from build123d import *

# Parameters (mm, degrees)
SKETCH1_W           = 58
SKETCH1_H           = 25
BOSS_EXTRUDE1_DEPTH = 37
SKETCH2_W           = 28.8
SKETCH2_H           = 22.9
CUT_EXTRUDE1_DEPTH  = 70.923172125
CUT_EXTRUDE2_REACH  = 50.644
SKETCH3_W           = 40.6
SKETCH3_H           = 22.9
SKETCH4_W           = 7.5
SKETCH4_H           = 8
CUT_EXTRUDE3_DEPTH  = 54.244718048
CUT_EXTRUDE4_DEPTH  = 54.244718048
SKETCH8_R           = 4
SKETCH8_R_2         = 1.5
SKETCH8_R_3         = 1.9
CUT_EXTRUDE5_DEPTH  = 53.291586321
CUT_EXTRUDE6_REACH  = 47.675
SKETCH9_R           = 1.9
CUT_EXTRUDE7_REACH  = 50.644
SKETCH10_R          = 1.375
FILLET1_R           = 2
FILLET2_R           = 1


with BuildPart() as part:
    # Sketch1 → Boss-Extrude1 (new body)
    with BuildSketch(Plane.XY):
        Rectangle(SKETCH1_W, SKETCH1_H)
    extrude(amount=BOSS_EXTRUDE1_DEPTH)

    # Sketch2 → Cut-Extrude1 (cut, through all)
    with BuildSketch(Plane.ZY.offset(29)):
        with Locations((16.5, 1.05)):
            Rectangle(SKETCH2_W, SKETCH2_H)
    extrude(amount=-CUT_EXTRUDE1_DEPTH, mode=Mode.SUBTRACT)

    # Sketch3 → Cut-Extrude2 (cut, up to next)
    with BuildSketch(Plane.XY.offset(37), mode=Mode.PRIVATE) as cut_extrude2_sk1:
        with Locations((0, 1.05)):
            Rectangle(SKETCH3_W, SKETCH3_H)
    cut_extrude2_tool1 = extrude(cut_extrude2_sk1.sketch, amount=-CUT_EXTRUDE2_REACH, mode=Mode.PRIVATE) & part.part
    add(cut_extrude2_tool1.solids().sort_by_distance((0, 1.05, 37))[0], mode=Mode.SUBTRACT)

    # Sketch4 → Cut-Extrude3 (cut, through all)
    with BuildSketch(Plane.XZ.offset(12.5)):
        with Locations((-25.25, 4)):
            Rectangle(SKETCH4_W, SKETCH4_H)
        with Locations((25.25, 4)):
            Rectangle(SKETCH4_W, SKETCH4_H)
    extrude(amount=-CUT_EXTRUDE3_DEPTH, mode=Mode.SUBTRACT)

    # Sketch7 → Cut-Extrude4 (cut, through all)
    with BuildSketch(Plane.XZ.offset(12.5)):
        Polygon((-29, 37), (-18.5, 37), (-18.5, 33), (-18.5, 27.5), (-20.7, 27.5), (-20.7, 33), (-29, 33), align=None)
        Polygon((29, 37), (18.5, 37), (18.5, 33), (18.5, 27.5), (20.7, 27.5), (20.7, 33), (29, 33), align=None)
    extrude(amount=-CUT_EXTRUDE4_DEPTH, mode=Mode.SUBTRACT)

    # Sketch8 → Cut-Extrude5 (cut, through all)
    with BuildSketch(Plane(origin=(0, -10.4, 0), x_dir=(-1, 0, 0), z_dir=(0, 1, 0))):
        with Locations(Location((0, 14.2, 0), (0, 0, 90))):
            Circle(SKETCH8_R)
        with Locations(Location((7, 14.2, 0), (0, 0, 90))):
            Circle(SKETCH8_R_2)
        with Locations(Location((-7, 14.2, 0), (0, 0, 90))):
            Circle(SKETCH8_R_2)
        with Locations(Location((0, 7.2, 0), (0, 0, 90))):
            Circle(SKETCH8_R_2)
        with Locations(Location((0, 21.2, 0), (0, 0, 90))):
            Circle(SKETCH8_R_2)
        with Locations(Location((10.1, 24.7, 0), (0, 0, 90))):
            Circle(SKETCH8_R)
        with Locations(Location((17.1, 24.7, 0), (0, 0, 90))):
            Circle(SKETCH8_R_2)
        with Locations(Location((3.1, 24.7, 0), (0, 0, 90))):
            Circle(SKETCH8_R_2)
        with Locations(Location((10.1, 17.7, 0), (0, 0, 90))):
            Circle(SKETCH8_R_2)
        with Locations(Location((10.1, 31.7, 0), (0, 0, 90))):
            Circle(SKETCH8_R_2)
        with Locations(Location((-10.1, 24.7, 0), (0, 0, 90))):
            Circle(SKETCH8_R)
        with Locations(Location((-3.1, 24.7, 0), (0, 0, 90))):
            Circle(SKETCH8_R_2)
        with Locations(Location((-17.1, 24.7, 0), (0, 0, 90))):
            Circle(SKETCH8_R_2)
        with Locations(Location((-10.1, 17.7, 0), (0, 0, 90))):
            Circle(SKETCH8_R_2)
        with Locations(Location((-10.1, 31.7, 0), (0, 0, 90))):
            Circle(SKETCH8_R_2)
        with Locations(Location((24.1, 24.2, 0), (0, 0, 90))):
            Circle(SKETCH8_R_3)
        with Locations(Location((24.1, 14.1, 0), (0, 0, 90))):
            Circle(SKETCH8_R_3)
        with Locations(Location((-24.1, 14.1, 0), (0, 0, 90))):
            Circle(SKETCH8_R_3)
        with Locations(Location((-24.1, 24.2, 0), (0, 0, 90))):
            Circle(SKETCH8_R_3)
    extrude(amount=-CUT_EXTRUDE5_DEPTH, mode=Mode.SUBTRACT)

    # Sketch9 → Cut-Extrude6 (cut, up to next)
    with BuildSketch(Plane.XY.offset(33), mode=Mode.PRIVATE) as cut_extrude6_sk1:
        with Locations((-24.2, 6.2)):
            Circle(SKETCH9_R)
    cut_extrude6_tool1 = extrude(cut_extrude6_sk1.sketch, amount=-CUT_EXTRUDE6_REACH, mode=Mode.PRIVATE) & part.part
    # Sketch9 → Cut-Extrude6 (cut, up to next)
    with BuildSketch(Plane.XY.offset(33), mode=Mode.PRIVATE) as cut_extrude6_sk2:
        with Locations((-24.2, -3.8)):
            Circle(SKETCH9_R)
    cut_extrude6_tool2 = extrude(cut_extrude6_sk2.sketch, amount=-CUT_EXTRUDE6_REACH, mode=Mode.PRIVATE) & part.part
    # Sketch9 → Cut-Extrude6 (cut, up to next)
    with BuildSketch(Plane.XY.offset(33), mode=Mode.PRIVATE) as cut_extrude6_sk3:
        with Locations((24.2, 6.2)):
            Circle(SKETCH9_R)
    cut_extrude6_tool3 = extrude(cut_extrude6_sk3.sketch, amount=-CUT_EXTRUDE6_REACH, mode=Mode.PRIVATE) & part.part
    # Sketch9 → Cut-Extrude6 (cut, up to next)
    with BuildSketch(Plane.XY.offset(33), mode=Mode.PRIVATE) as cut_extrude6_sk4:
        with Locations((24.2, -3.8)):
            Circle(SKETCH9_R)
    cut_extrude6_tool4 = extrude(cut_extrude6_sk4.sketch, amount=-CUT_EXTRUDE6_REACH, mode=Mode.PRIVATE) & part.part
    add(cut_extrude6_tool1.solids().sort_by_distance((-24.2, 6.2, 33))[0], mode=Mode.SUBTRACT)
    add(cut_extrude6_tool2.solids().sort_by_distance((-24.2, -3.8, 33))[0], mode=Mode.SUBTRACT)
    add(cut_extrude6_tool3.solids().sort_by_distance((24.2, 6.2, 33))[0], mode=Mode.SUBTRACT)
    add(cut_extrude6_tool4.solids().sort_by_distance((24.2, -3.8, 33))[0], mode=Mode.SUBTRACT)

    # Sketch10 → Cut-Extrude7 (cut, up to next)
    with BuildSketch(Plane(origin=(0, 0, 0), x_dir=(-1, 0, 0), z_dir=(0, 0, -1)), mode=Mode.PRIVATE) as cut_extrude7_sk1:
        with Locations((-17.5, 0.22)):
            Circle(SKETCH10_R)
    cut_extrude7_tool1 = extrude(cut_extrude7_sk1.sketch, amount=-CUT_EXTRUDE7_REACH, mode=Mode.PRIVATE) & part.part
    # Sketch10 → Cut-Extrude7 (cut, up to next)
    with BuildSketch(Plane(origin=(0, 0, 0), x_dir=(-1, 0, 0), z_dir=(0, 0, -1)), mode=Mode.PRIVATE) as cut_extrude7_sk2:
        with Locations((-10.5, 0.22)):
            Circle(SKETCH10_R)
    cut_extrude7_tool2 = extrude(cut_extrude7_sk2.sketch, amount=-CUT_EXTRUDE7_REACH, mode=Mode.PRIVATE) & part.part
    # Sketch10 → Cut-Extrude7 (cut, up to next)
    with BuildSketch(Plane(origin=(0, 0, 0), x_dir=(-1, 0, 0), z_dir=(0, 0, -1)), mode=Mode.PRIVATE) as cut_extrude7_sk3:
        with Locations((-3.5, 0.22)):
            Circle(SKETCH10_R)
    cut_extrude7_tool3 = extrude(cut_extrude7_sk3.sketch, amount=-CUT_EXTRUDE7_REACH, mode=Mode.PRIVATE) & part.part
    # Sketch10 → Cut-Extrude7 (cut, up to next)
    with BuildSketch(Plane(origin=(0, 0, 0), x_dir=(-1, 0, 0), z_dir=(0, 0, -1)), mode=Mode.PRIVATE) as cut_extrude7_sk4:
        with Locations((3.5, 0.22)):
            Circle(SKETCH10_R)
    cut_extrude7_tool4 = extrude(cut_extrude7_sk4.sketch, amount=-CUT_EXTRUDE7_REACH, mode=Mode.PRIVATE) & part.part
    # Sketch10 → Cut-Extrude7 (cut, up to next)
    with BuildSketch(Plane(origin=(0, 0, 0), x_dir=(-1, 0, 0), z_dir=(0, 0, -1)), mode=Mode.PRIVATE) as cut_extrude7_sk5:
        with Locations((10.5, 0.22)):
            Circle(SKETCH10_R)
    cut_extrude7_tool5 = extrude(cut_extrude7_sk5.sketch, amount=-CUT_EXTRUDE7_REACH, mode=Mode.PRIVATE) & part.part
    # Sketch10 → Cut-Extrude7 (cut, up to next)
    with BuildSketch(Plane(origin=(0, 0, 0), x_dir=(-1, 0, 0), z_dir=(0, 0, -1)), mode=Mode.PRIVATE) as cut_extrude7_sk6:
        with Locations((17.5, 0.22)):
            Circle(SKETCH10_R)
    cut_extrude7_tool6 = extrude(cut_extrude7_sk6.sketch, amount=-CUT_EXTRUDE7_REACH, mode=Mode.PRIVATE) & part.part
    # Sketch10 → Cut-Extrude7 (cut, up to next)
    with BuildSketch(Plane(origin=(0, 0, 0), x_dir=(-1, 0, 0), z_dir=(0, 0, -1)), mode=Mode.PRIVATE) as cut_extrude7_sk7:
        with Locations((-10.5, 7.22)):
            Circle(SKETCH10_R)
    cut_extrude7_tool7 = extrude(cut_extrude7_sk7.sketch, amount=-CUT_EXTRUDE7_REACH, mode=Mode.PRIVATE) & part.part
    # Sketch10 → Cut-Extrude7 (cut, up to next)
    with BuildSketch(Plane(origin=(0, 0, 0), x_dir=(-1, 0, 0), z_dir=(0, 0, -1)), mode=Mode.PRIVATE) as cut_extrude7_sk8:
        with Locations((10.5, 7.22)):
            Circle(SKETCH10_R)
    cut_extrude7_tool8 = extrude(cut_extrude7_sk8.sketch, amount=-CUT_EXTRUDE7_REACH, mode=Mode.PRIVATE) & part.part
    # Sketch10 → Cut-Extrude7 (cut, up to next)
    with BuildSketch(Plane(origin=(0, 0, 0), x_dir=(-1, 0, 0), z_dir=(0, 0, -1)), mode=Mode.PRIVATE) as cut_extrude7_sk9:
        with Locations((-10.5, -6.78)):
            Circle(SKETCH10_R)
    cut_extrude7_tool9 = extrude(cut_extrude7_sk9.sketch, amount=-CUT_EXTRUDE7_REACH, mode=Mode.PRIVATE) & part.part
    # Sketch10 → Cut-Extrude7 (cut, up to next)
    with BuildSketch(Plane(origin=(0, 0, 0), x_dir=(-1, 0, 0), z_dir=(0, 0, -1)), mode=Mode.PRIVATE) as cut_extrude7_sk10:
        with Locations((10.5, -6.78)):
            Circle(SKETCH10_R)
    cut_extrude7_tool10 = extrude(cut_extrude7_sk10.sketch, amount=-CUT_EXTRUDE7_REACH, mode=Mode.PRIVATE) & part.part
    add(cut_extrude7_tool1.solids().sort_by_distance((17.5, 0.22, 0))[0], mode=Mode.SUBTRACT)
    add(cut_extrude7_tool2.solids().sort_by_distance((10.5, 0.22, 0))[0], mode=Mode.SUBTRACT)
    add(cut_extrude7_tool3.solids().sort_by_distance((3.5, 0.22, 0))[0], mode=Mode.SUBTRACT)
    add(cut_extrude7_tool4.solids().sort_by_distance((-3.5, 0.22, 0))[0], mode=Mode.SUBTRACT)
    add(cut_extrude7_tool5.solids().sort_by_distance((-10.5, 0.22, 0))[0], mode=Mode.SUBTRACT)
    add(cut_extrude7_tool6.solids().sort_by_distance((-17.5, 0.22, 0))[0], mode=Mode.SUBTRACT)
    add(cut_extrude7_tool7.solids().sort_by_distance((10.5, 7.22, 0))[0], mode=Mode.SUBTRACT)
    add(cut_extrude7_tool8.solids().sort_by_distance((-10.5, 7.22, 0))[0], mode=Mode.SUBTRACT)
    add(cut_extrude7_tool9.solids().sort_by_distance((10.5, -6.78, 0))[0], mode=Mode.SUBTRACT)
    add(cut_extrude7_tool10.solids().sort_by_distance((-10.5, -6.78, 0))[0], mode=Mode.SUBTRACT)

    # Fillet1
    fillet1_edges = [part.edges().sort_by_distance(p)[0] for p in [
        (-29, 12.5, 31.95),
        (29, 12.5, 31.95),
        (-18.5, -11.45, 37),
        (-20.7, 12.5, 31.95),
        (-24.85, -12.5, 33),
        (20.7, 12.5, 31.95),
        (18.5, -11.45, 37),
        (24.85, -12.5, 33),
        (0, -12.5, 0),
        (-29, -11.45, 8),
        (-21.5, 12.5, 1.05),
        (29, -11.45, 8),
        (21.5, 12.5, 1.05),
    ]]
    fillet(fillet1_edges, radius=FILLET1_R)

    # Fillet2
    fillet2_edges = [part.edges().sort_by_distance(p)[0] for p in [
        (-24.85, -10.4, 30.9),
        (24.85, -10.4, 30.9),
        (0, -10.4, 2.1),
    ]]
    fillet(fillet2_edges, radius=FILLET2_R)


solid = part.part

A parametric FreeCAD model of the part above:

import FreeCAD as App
import Part
import Sketcher


def edges_at(feature, points):
    """Names of the edges that pass closest to the given points."""
    edges = feature.Shape.Edges
    near = lambda p: min(range(len(edges)), key=lambda i: edges[i].distToShape(Part.Vertex(*p))[0])
    return sorted({f"Edge{near(p) + 1}" for p in points})

doc = App.newDocument("Part")
body = doc.addObject("PartDesign::Body", "Body")

# Sketch on XY plane
sketch1 = body.newObject("Sketcher::SketchObject", "Sketch")
sketch1.AttachmentSupport = (doc.getObject("XY_Plane"), [""])
sketch1.MapMode = "FlatFace"
sketch1.addGeometry(Part.LineSegment(App.Vector(-29, 12.5, 0), App.Vector(-29, -12.5, 0)), False)
sketch1.addGeometry(Part.LineSegment(App.Vector(-29, -12.5, 0), App.Vector(29, -12.5, 0)), False)
sketch1.addGeometry(Part.LineSegment(App.Vector(29, -12.5, 0), App.Vector(29, 12.5, 0)), False)
sketch1.addGeometry(Part.LineSegment(App.Vector(29, 12.5, 0), App.Vector(-29, 12.5, 0)), False)
sketch1.addConstraint(Sketcher.Constraint("Coincident", 0, 2, 1, 1))
sketch1.addConstraint(Sketcher.Constraint("Coincident", 1, 2, 2, 1))
sketch1.addConstraint(Sketcher.Constraint("Coincident", 2, 2, 3, 1))
sketch1.addConstraint(Sketcher.Constraint("Coincident", 3, 2, 0, 1))
sketch1.addConstraint(Sketcher.Constraint("Vertical", 0))
sketch1.addConstraint(Sketcher.Constraint("Horizontal", 1))
sketch1.addConstraint(Sketcher.Constraint("Vertical", 2))
sketch1.addConstraint(Sketcher.Constraint("Horizontal", 3))
sketch1.addConstraint(Sketcher.Constraint("Symmetric", 0, 2, 2, 2, -1, 1))
sketch1.addConstraint(Sketcher.Constraint("DistanceX", 1, 1, 1, 2, 58.0))
sketch1.addConstraint(Sketcher.Constraint("DistanceY", 0, 2, 0, 1, 25.0))
pad1 = body.newObject("PartDesign::Pad", "Pad")
pad1.Profile = sketch1
pad1.Length = 37

# Sketch on YZ plane
sketch2 = body.newObject("Sketcher::SketchObject", "Sketch001")
sketch2.AttachmentSupport = (doc.getObject("YZ_Plane"), [""])
sketch2.MapMode = "FlatFace"
sketch2.AttachmentOffset = App.Placement(App.Vector(0, 0, -29), App.Rotation())
sketch2.addGeometry(Part.LineSegment(App.Vector(12.5, 2.1, 0), App.Vector(-10.4, 2.1, 0)), False)
sketch2.addGeometry(Part.LineSegment(App.Vector(-10.4, 2.1, 0), App.Vector(-10.4, 30.9, 0)), False)
sketch2.addGeometry(Part.LineSegment(App.Vector(-10.4, 30.9, 0), App.Vector(12.5, 30.9, 0)), False)
sketch2.addGeometry(Part.LineSegment(App.Vector(12.5, 30.9, 0), App.Vector(12.5, 2.1, 0)), False)
sketch2.addConstraint(Sketcher.Constraint("Coincident", 0, 2, 1, 1))
sketch2.addConstraint(Sketcher.Constraint("Coincident", 1, 2, 2, 1))
sketch2.addConstraint(Sketcher.Constraint("Coincident", 2, 2, 3, 1))
sketch2.addConstraint(Sketcher.Constraint("Coincident", 3, 2, 0, 1))
sketch2.addConstraint(Sketcher.Constraint("Horizontal", 0))
sketch2.addConstraint(Sketcher.Constraint("Vertical", 1))
sketch2.addConstraint(Sketcher.Constraint("Horizontal", 2))
sketch2.addConstraint(Sketcher.Constraint("Vertical", 3))
sketch2.addConstraint(Sketcher.Constraint("DistanceX", 0, 2, 0, 1, 22.9))
sketch2.addConstraint(Sketcher.Constraint("DistanceY", 1, 1, 1, 2, 28.8))
sketch2.addConstraint(Sketcher.Constraint("DistanceX", 0, 2, -1, 1, 10.4))
sketch2.addConstraint(Sketcher.Constraint("DistanceY", -1, 1, 0, 2, 2.1))
pocket1 = body.newObject("PartDesign::Pocket", "Pocket")
pocket1.Profile = sketch2
pocket1.Type = "ThroughAll"
pocket1.Reversed = True

# Sketch on XY plane
sketch3 = body.newObject("Sketcher::SketchObject", "Sketch002")
sketch3.AttachmentSupport = (doc.getObject("XY_Plane"), [""])
sketch3.MapMode = "FlatFace"
sketch3.AttachmentOffset = App.Placement(App.Vector(0, 0, 37), App.Rotation())
sketch3.addGeometry(Part.LineSegment(App.Vector(-20.3, 12.5, 0), App.Vector(-20.3, -10.4, 0)), False)
sketch3.addGeometry(Part.LineSegment(App.Vector(-20.3, -10.4, 0), App.Vector(20.3, -10.4, 0)), False)
sketch3.addGeometry(Part.LineSegment(App.Vector(20.3, -10.4, 0), App.Vector(20.3, 12.5, 0)), False)
sketch3.addGeometry(Part.LineSegment(App.Vector(20.3, 12.5, 0), App.Vector(-20.3, 12.5, 0)), False)
sketch3.addConstraint(Sketcher.Constraint("Coincident", 0, 2, 1, 1))
sketch3.addConstraint(Sketcher.Constraint("Coincident", 1, 2, 2, 1))
sketch3.addConstraint(Sketcher.Constraint("Coincident", 2, 2, 3, 1))
sketch3.addConstraint(Sketcher.Constraint("Coincident", 3, 2, 0, 1))
sketch3.addConstraint(Sketcher.Constraint("Vertical", 0))
sketch3.addConstraint(Sketcher.Constraint("Horizontal", 1))
sketch3.addConstraint(Sketcher.Constraint("Vertical", 2))
sketch3.addConstraint(Sketcher.Constraint("Horizontal", 3))
sketch3.addConstraint(Sketcher.Constraint("DistanceX", 1, 1, 1, 2, 40.6))
sketch3.addConstraint(Sketcher.Constraint("DistanceY", 0, 2, 0, 1, 22.9))
sketch3.addConstraint(Sketcher.Constraint("DistanceX", 0, 2, -1, 1, 20.3))
sketch3.addConstraint(Sketcher.Constraint("DistanceY", 0, 2, -1, 1, 10.4))
pocket2 = body.newObject("PartDesign::Pocket", "Pocket001")
pocket2.Profile = sketch3
pocket2.Type = "UpToFirst"

# Sketch on XZ plane
sketch4 = body.newObject("Sketcher::SketchObject", "Sketch003")
sketch4.AttachmentSupport = (doc.getObject("XZ_Plane"), [""])
sketch4.MapMode = "FlatFace"
sketch4.AttachmentOffset = App.Placement(App.Vector(0, 0, 12.5), App.Rotation())
sketch4.addGeometry(Part.LineSegment(App.Vector(-29, 8, 0), App.Vector(-29, 0, 0)), False)
sketch4.addGeometry(Part.LineSegment(App.Vector(-29, 0, 0), App.Vector(-21.5, 0, 0)), False)
sketch4.addGeometry(Part.LineSegment(App.Vector(-21.5, 0, 0), App.Vector(-21.5, 8, 0)), False)
sketch4.addGeometry(Part.LineSegment(App.Vector(-21.5, 8, 0), App.Vector(-29, 8, 0)), False)
sketch4.addGeometry(Part.LineSegment(App.Vector(21.5, 8, 0), App.Vector(21.5, 0, 0)), False)
sketch4.addGeometry(Part.LineSegment(App.Vector(21.5, 0, 0), App.Vector(29, 0, 0)), False)
sketch4.addGeometry(Part.LineSegment(App.Vector(29, 0, 0), App.Vector(29, 8, 0)), False)
sketch4.addGeometry(Part.LineSegment(App.Vector(29, 8, 0), App.Vector(21.5, 8, 0)), False)
sketch4.addConstraint(Sketcher.Constraint("Coincident", 0, 2, 1, 1))
sketch4.addConstraint(Sketcher.Constraint("Coincident", 1, 2, 2, 1))
sketch4.addConstraint(Sketcher.Constraint("Coincident", 2, 2, 3, 1))
sketch4.addConstraint(Sketcher.Constraint("Coincident", 3, 2, 0, 1))
sketch4.addConstraint(Sketcher.Constraint("Coincident", 4, 2, 5, 1))
sketch4.addConstraint(Sketcher.Constraint("Coincident", 5, 2, 6, 1))
sketch4.addConstraint(Sketcher.Constraint("Coincident", 6, 2, 7, 1))
sketch4.addConstraint(Sketcher.Constraint("Coincident", 7, 2, 4, 1))
sketch4.addConstraint(Sketcher.Constraint("Vertical", 0))
sketch4.addConstraint(Sketcher.Constraint("Horizontal", 1))
sketch4.addConstraint(Sketcher.Constraint("Vertical", 2))
sketch4.addConstraint(Sketcher.Constraint("Horizontal", 3))
sketch4.addConstraint(Sketcher.Constraint("Vertical", 4))
sketch4.addConstraint(Sketcher.Constraint("Horizontal", 5))
sketch4.addConstraint(Sketcher.Constraint("Vertical", 6))
sketch4.addConstraint(Sketcher.Constraint("Horizontal", 7))
sketch4.addConstraint(Sketcher.Constraint("Symmetric", 1, 2, 4, 2, -1, 1))
sketch4.addConstraint(Sketcher.Constraint("Symmetric", 0, 2, 5, 2, -2))
sketch4.addConstraint(Sketcher.Constraint("Horizontal", 3, 2, 6, 2))
sketch4.addConstraint(Sketcher.Constraint("DistanceY", 0, 2, 0, 1, 8.0))
sketch4.addConstraint(Sketcher.Constraint("DistanceX", 1, 1, 1, 2, 7.5))
sketch4.addConstraint(Sketcher.Constraint("DistanceX", 0, 2, -1, 1, 29.0))
pocket3 = body.newObject("PartDesign::Pocket", "Pocket002")
pocket3.Profile = sketch4
pocket3.Type = "ThroughAll"

# Sketch on XZ plane
sketch5 = body.newObject("Sketcher::SketchObject", "Sketch004")
sketch5.AttachmentSupport = (doc.getObject("XZ_Plane"), [""])
sketch5.MapMode = "FlatFace"
sketch5.AttachmentOffset = App.Placement(App.Vector(0, 0, 12.5), App.Rotation())
sketch5.addGeometry(Part.LineSegment(App.Vector(-18.5, 37, 0), App.Vector(-29, 37, 0)), False)
sketch5.addGeometry(Part.LineSegment(App.Vector(-29, 37, 0), App.Vector(-29, 33, 0)), False)
sketch5.addGeometry(Part.LineSegment(App.Vector(-29, 33, 0), App.Vector(-20.7, 33, 0)), False)
sketch5.addGeometry(Part.LineSegment(App.Vector(-20.7, 33, 0), App.Vector(-20.7, 27.5, 0)), False)
sketch5.addGeometry(Part.LineSegment(App.Vector(-20.7, 27.5, 0), App.Vector(-18.5, 27.5, 0)), False)
sketch5.addGeometry(Part.LineSegment(App.Vector(-18.5, 27.5, 0), App.Vector(-18.5, 37, 0)), False)
sketch5.addGeometry(Part.LineSegment(App.Vector(29, 37, 0), App.Vector(18.5, 37, 0)), False)
sketch5.addGeometry(Part.LineSegment(App.Vector(18.5, 37, 0), App.Vector(18.5, 27.5, 0)), False)
sketch5.addGeometry(Part.LineSegment(App.Vector(18.5, 27.5, 0), App.Vector(20.7, 27.5, 0)), False)
sketch5.addGeometry(Part.LineSegment(App.Vector(20.7, 27.5, 0), App.Vector(20.7, 33, 0)), False)
sketch5.addGeometry(Part.LineSegment(App.Vector(20.7, 33, 0), App.Vector(29, 33, 0)), False)
sketch5.addGeometry(Part.LineSegment(App.Vector(29, 33, 0), App.Vector(29, 37, 0)), False)
sketch5.addConstraint(Sketcher.Constraint("Coincident", 0, 2, 1, 1))
sketch5.addConstraint(Sketcher.Constraint("Coincident", 1, 2, 2, 1))
sketch5.addConstraint(Sketcher.Constraint("Coincident", 2, 2, 3, 1))
sketch5.addConstraint(Sketcher.Constraint("Coincident", 3, 2, 4, 1))
sketch5.addConstraint(Sketcher.Constraint("Coincident", 4, 2, 5, 1))
sketch5.addConstraint(Sketcher.Constraint("Coincident", 5, 2, 0, 1))
sketch5.addConstraint(Sketcher.Constraint("Coincident", 6, 2, 7, 1))
sketch5.addConstraint(Sketcher.Constraint("Coincident", 7, 2, 8, 1))
sketch5.addConstraint(Sketcher.Constraint("Coincident", 8, 2, 9, 1))
sketch5.addConstraint(Sketcher.Constraint("Coincident", 9, 2, 10, 1))
sketch5.addConstraint(Sketcher.Constraint("Coincident", 10, 2, 11, 1))
sketch5.addConstraint(Sketcher.Constraint("Coincident", 11, 2, 6, 1))
sketch5.addConstraint(Sketcher.Constraint("Horizontal", 0))
sketch5.addConstraint(Sketcher.Constraint("Vertical", 1))
sketch5.addConstraint(Sketcher.Constraint("Horizontal", 2))
sketch5.addConstraint(Sketcher.Constraint("Vertical", 3))
sketch5.addConstraint(Sketcher.Constraint("Horizontal", 4))
sketch5.addConstraint(Sketcher.Constraint("Vertical", 5))
sketch5.addConstraint(Sketcher.Constraint("Horizontal", 6))
sketch5.addConstraint(Sketcher.Constraint("Vertical", 7))
sketch5.addConstraint(Sketcher.Constraint("Horizontal", 8))
sketch5.addConstraint(Sketcher.Constraint("Vertical", 9))
sketch5.addConstraint(Sketcher.Constraint("Horizontal", 10))
sketch5.addConstraint(Sketcher.Constraint("Vertical", 11))
sketch5.addConstraint(Sketcher.Constraint("Symmetric", 5, 2, 6, 2, -2))
sketch5.addConstraint(Sketcher.Constraint("Symmetric", 3, 2, 8, 2, -2))
sketch5.addConstraint(Sketcher.Constraint("Symmetric", 1, 2, 10, 2, -2))
sketch5.addConstraint(Sketcher.Constraint("DistanceY", 1, 2, 1, 1, 4.0))
sketch5.addConstraint(Sketcher.Constraint("DistanceX", 0, 2, 0, 1, 10.5))
sketch5.addConstraint(Sketcher.Constraint("DistanceX", 2, 1, 2, 2, 8.3))
sketch5.addConstraint(Sketcher.Constraint("DistanceY", 3, 2, 3, 1, 5.5))
sketch5.addConstraint(Sketcher.Constraint("DistanceX", 0, 2, -1, 1, 29.0))
sketch5.addConstraint(Sketcher.Constraint("DistanceY", -1, 1, 0, 2, 37.0))
pocket4 = body.newObject("PartDesign::Pocket", "Pocket003")
pocket4.Profile = sketch5
pocket4.Type = "ThroughAll"

# Sketch on XZ plane
sketch6 = body.newObject("Sketcher::SketchObject", "Sketch005")
sketch6.AttachmentSupport = (doc.getObject("XZ_Plane"), [""])
sketch6.MapMode = "FlatFace"
sketch6.AttachmentOffset = App.Placement(App.Vector(0, 0, 10.4), App.Rotation())
sketch6.addGeometry(Part.Circle(App.Vector(0, 14.2, 0), App.Vector(0, 0, 1), 4), False)
sketch6.addGeometry(Part.Circle(App.Vector(-7, 14.2, 0), App.Vector(0, 0, 1), 1.5), False)
sketch6.addGeometry(Part.Circle(App.Vector(7, 14.2, 0), App.Vector(0, 0, 1), 1.5), False)
sketch6.addGeometry(Part.Circle(App.Vector(0, 7.2, 0), App.Vector(0, 0, 1), 1.5), False)
sketch6.addGeometry(Part.Circle(App.Vector(0, 21.2, 0), App.Vector(0, 0, 1), 1.5), False)
sketch6.addGeometry(Part.Circle(App.Vector(-10.1, 24.7, 0), App.Vector(0, 0, 1), 4), False)
sketch6.addGeometry(Part.Circle(App.Vector(-17.1, 24.7, 0), App.Vector(0, 0, 1), 1.5), False)
sketch6.addGeometry(Part.Circle(App.Vector(-3.1, 24.7, 0), App.Vector(0, 0, 1), 1.5), False)
sketch6.addGeometry(Part.Circle(App.Vector(-10.1, 17.7, 0), App.Vector(0, 0, 1), 1.5), False)
sketch6.addGeometry(Part.Circle(App.Vector(-10.1, 31.7, 0), App.Vector(0, 0, 1), 1.5), False)
sketch6.addGeometry(Part.Circle(App.Vector(10.1, 24.7, 0), App.Vector(0, 0, 1), 4), False)
sketch6.addGeometry(Part.Circle(App.Vector(3.1, 24.7, 0), App.Vector(0, 0, 1), 1.5), False)
sketch6.addGeometry(Part.Circle(App.Vector(17.1, 24.7, 0), App.Vector(0, 0, 1), 1.5), False)
sketch6.addGeometry(Part.Circle(App.Vector(10.1, 17.7, 0), App.Vector(0, 0, 1), 1.5), False)
sketch6.addGeometry(Part.Circle(App.Vector(10.1, 31.7, 0), App.Vector(0, 0, 1), 1.5), False)
sketch6.addGeometry(Part.Circle(App.Vector(-24.1, 24.2, 0), App.Vector(0, 0, 1), 1.9), False)
sketch6.addGeometry(Part.Circle(App.Vector(-24.1, 14.1, 0), App.Vector(0, 0, 1), 1.9), False)
sketch6.addGeometry(Part.Circle(App.Vector(24.1, 14.1, 0), App.Vector(0, 0, 1), 1.9), False)
sketch6.addGeometry(Part.Circle(App.Vector(24.1, 24.2, 0), App.Vector(0, 0, 1), 1.9), False)
sketch6.addConstraint(Sketcher.Constraint("Equal", 1, 2))
sketch6.addConstraint(Sketcher.Constraint("Equal", 2, 3))
sketch6.addConstraint(Sketcher.Constraint("Equal", 3, 4))
sketch6.addConstraint(Sketcher.Constraint("Equal", 0, 5))
sketch6.addConstraint(Sketcher.Constraint("Equal", 4, 6))
sketch6.addConstraint(Sketcher.Constraint("Equal", 6, 7))
sketch6.addConstraint(Sketcher.Constraint("Equal", 7, 8))
sketch6.addConstraint(Sketcher.Constraint("Equal", 8, 9))
sketch6.addConstraint(Sketcher.Constraint("Equal", 5, 10))
sketch6.addConstraint(Sketcher.Constraint("Equal", 9, 11))
sketch6.addConstraint(Sketcher.Constraint("Equal", 11, 12))
sketch6.addConstraint(Sketcher.Constraint("Equal", 12, 13))
sketch6.addConstraint(Sketcher.Constraint("Equal", 13, 14))
sketch6.addConstraint(Sketcher.Constraint("Equal", 15, 16))
sketch6.addConstraint(Sketcher.Constraint("Equal", 16, 17))
sketch6.addConstraint(Sketcher.Constraint("Equal", 17, 18))
sketch6.addConstraint(Sketcher.Constraint("Symmetric", 1, 3, 2, 3, -2))
sketch6.addConstraint(Sketcher.Constraint("Symmetric", 5, 3, 10, 3, -2))
sketch6.addConstraint(Sketcher.Constraint("Symmetric", 7, 3, 11, 3, -2))
sketch6.addConstraint(Sketcher.Constraint("Symmetric", 6, 3, 12, 3, -2))
sketch6.addConstraint(Sketcher.Constraint("Symmetric", 8, 3, 13, 3, -2))
sketch6.addConstraint(Sketcher.Constraint("Symmetric", 9, 3, 14, 3, -2))
sketch6.addConstraint(Sketcher.Constraint("Symmetric", 16, 3, 17, 3, -2))
sketch6.addConstraint(Sketcher.Constraint("Symmetric", 15, 3, 18, 3, -2))
sketch6.addConstraint(Sketcher.Constraint("PointOnObject", 0, 3, -2))
sketch6.addConstraint(Sketcher.Constraint("PointOnObject", 3, 3, -2))
sketch6.addConstraint(Sketcher.Constraint("PointOnObject", 4, 3, -2))
sketch6.addConstraint(Sketcher.Constraint("Horizontal", 0, 3, 1, 3))
sketch6.addConstraint(Sketcher.Constraint("Horizontal", 5, 3, 6, 3))
sketch6.addConstraint(Sketcher.Constraint("Horizontal", 6, 3, 7, 3))
sketch6.addConstraint(Sketcher.Constraint("Vertical", 5, 3, 8, 3))
sketch6.addConstraint(Sketcher.Constraint("Vertical", 8, 3, 9, 3))
sketch6.addConstraint(Sketcher.Constraint("Vertical", 15, 3, 16, 3))
sketch6.addConstraint(Sketcher.Constraint("Diameter", 0, 8.0))
sketch6.addConstraint(Sketcher.Constraint("Diameter", 1, 3.0))
sketch6.addConstraint(Sketcher.Constraint("Diameter", 15, 3.8))
sketch6.addConstraint(Sketcher.Constraint("DistanceX", 1, 3, -1, 1, 7.0))
sketch6.addConstraint(Sketcher.Constraint("DistanceY", 3, 3, 0, 3, 7.0))
sketch6.addConstraint(Sketcher.Constraint("DistanceY", 0, 3, 4, 3, 7.0))
sketch6.addConstraint(Sketcher.Constraint("DistanceX", 6, 3, 5, 3, 7.0))
sketch6.addConstraint(Sketcher.Constraint("DistanceX", 5, 3, 7, 3, 7.0))
sketch6.addConstraint(Sketcher.Constraint("DistanceY", 8, 3, 5, 3, 7.0))
sketch6.addConstraint(Sketcher.Constraint("DistanceY", 5, 3, 9, 3, 7.0))
sketch6.addConstraint(Sketcher.Constraint("DistanceX", 15, 3, 6, 3, 7.0))
sketch6.addConstraint(Sketcher.Constraint("DistanceY", 1, 3, 15, 3, 10.0))
sketch6.addConstraint(Sketcher.Constraint("DistanceY", -1, 1, 0, 3, 14.2))
sketch6.addConstraint(Sketcher.Constraint("DistanceX", 5, 3, -1, 1, 10.1))
sketch6.addConstraint(Sketcher.Constraint("DistanceY", -1, 1, 5, 3, 24.7))
sketch6.addConstraint(Sketcher.Constraint("DistanceY", -1, 1, 16, 3, 14.1))
pocket5 = body.newObject("PartDesign::Pocket", "Pocket004")
pocket5.Profile = sketch6
pocket5.Type = "ThroughAll"
pocket5.Reversed = True

# Sketch on XY plane
sketch7 = body.newObject("Sketcher::SketchObject", "Sketch006")
sketch7.AttachmentSupport = (doc.getObject("XY_Plane"), [""])
sketch7.MapMode = "FlatFace"
sketch7.AttachmentOffset = App.Placement(App.Vector(0, 0, 33), App.Rotation())
sketch7.addGeometry(Part.Circle(App.Vector(-24.2, 6.2, 0), App.Vector(0, 0, 1), 1.9), False)
sketch7.addConstraint(Sketcher.Constraint("Diameter", 0, 3.8))
sketch7.addConstraint(Sketcher.Constraint("DistanceX", 0, 3, -1, 1, 24.2))
sketch7.addConstraint(Sketcher.Constraint("DistanceY", -1, 1, 0, 3, 6.2))
pocket6 = body.newObject("PartDesign::Pocket", "Pocket005")
pocket6.Profile = sketch7
pocket6.Type = "UpToFirst"

# Sketch on XY plane
sketch8 = body.newObject("Sketcher::SketchObject", "Sketch007")
sketch8.AttachmentSupport = (doc.getObject("XY_Plane"), [""])
sketch8.MapMode = "FlatFace"
sketch8.AttachmentOffset = App.Placement(App.Vector(0, 0, 33), App.Rotation())
sketch8.addGeometry(Part.Circle(App.Vector(-24.2, -3.8, 0), App.Vector(0, 0, 1), 1.9), False)
sketch8.addConstraint(Sketcher.Constraint("Diameter", 0, 3.8))
sketch8.addConstraint(Sketcher.Constraint("DistanceX", 0, 3, -1, 1, 24.2))
sketch8.addConstraint(Sketcher.Constraint("DistanceY", 0, 3, -1, 1, 3.8))
pocket7 = body.newObject("PartDesign::Pocket", "Pocket006")
pocket7.Profile = sketch8
pocket7.Type = "UpToFirst"

# Sketch on XY plane
sketch9 = body.newObject("Sketcher::SketchObject", "Sketch008")
sketch9.AttachmentSupport = (doc.getObject("XY_Plane"), [""])
sketch9.MapMode = "FlatFace"
sketch9.AttachmentOffset = App.Placement(App.Vector(0, 0, 33), App.Rotation())
sketch9.addGeometry(Part.Circle(App.Vector(24.2, 6.2, 0), App.Vector(0, 0, 1), 1.9), False)
sketch9.addConstraint(Sketcher.Constraint("Diameter", 0, 3.8))
sketch9.addConstraint(Sketcher.Constraint("DistanceX", -1, 1, 0, 3, 24.2))
sketch9.addConstraint(Sketcher.Constraint("DistanceY", -1, 1, 0, 3, 6.2))
pocket8 = body.newObject("PartDesign::Pocket", "Pocket007")
pocket8.Profile = sketch9
pocket8.Type = "UpToFirst"

# Sketch on XY plane
sketch10 = body.newObject("Sketcher::SketchObject", "Sketch009")
sketch10.AttachmentSupport = (doc.getObject("XY_Plane"), [""])
sketch10.MapMode = "FlatFace"
sketch10.AttachmentOffset = App.Placement(App.Vector(0, 0, 33), App.Rotation())
sketch10.addGeometry(Part.Circle(App.Vector(24.2, -3.8, 0), App.Vector(0, 0, 1), 1.9), False)
sketch10.addConstraint(Sketcher.Constraint("Diameter", 0, 3.8))
sketch10.addConstraint(Sketcher.Constraint("DistanceX", -1, 1, 0, 3, 24.2))
sketch10.addConstraint(Sketcher.Constraint("DistanceY", 0, 3, -1, 1, 3.8))
pocket9 = body.newObject("PartDesign::Pocket", "Pocket008")
pocket9.Profile = sketch10
pocket9.Type = "UpToFirst"

# Sketch on XY plane
sketch11 = body.newObject("Sketcher::SketchObject", "Sketch010")
sketch11.AttachmentSupport = (doc.getObject("XY_Plane"), [""])
sketch11.MapMode = "FlatFace"
sketch11.addGeometry(Part.Circle(App.Vector(17.5, 0.22, 0), App.Vector(0, 0, 1), 1.375), False)
sketch11.addConstraint(Sketcher.Constraint("Diameter", 0, 2.75))
sketch11.addConstraint(Sketcher.Constraint("DistanceX", -1, 1, 0, 3, 17.5))
sketch11.addConstraint(Sketcher.Constraint("DistanceY", -1, 1, 0, 3, 0.22))
pocket10 = body.newObject("PartDesign::Pocket", "Pocket009")
pocket10.Profile = sketch11
pocket10.Type = "UpToFirst"
pocket10.Reversed = True

# Sketch on XY plane
sketch12 = body.newObject("Sketcher::SketchObject", "Sketch011")
sketch12.AttachmentSupport = (doc.getObject("XY_Plane"), [""])
sketch12.MapMode = "FlatFace"
sketch12.addGeometry(Part.Circle(App.Vector(10.5, 0.22, 0), App.Vector(0, 0, 1), 1.375), False)
sketch12.addConstraint(Sketcher.Constraint("Diameter", 0, 2.75))
sketch12.addConstraint(Sketcher.Constraint("DistanceX", -1, 1, 0, 3, 10.5))
sketch12.addConstraint(Sketcher.Constraint("DistanceY", -1, 1, 0, 3, 0.22))
pocket11 = body.newObject("PartDesign::Pocket", "Pocket010")
pocket11.Profile = sketch12
pocket11.Type = "UpToFirst"
pocket11.Reversed = True

# Sketch on XY plane
sketch13 = body.newObject("Sketcher::SketchObject", "Sketch012")
sketch13.AttachmentSupport = (doc.getObject("XY_Plane"), [""])
sketch13.MapMode = "FlatFace"
sketch13.addGeometry(Part.Circle(App.Vector(3.5, 0.22, 0), App.Vector(0, 0, 1), 1.375), False)
sketch13.addConstraint(Sketcher.Constraint("Diameter", 0, 2.75))
sketch13.addConstraint(Sketcher.Constraint("DistanceX", -1, 1, 0, 3, 3.5))
sketch13.addConstraint(Sketcher.Constraint("DistanceY", -1, 1, 0, 3, 0.22))
pocket12 = body.newObject("PartDesign::Pocket", "Pocket011")
pocket12.Profile = sketch13
pocket12.Type = "UpToFirst"
pocket12.Reversed = True

# Sketch on XY plane
sketch14 = body.newObject("Sketcher::SketchObject", "Sketch013")
sketch14.AttachmentSupport = (doc.getObject("XY_Plane"), [""])
sketch14.MapMode = "FlatFace"
sketch14.addGeometry(Part.Circle(App.Vector(-3.5, 0.22, 0), App.Vector(0, 0, 1), 1.375), False)
sketch14.addConstraint(Sketcher.Constraint("Diameter", 0, 2.75))
sketch14.addConstraint(Sketcher.Constraint("DistanceX", 0, 3, -1, 1, 3.5))
sketch14.addConstraint(Sketcher.Constraint("DistanceY", -1, 1, 0, 3, 0.22))
pocket13 = body.newObject("PartDesign::Pocket", "Pocket012")
pocket13.Profile = sketch14
pocket13.Type = "UpToFirst"
pocket13.Reversed = True

# Sketch on XY plane
sketch15 = body.newObject("Sketcher::SketchObject", "Sketch014")
sketch15.AttachmentSupport = (doc.getObject("XY_Plane"), [""])
sketch15.MapMode = "FlatFace"
sketch15.addGeometry(Part.Circle(App.Vector(-10.5, 0.22, 0), App.Vector(0, 0, 1), 1.375), False)
sketch15.addConstraint(Sketcher.Constraint("Diameter", 0, 2.75))
sketch15.addConstraint(Sketcher.Constraint("DistanceX", 0, 3, -1, 1, 10.5))
sketch15.addConstraint(Sketcher.Constraint("DistanceY", -1, 1, 0, 3, 0.22))
pocket14 = body.newObject("PartDesign::Pocket", "Pocket013")
pocket14.Profile = sketch15
pocket14.Type = "UpToFirst"
pocket14.Reversed = True

# Sketch on XY plane
sketch16 = body.newObject("Sketcher::SketchObject", "Sketch015")
sketch16.AttachmentSupport = (doc.getObject("XY_Plane"), [""])
sketch16.MapMode = "FlatFace"
sketch16.addGeometry(Part.Circle(App.Vector(-17.5, 0.22, 0), App.Vector(0, 0, 1), 1.375), False)
sketch16.addConstraint(Sketcher.Constraint("Diameter", 0, 2.75))
sketch16.addConstraint(Sketcher.Constraint("DistanceX", 0, 3, -1, 1, 17.5))
sketch16.addConstraint(Sketcher.Constraint("DistanceY", -1, 1, 0, 3, 0.22))
pocket15 = body.newObject("PartDesign::Pocket", "Pocket014")
pocket15.Profile = sketch16
pocket15.Type = "UpToFirst"
pocket15.Reversed = True

# Sketch on XY plane
sketch17 = body.newObject("Sketcher::SketchObject", "Sketch016")
sketch17.AttachmentSupport = (doc.getObject("XY_Plane"), [""])
sketch17.MapMode = "FlatFace"
sketch17.addGeometry(Part.Circle(App.Vector(10.5, 7.22, 0), App.Vector(0, 0, 1), 1.375), False)
sketch17.addConstraint(Sketcher.Constraint("Diameter", 0, 2.75))
sketch17.addConstraint(Sketcher.Constraint("DistanceX", -1, 1, 0, 3, 10.5))
sketch17.addConstraint(Sketcher.Constraint("DistanceY", -1, 1, 0, 3, 7.22))
pocket16 = body.newObject("PartDesign::Pocket", "Pocket015")
pocket16.Profile = sketch17
pocket16.Type = "UpToFirst"
pocket16.Reversed = True

# Sketch on XY plane
sketch18 = body.newObject("Sketcher::SketchObject", "Sketch017")
sketch18.AttachmentSupport = (doc.getObject("XY_Plane"), [""])
sketch18.MapMode = "FlatFace"
sketch18.addGeometry(Part.Circle(App.Vector(-10.5, 7.22, 0), App.Vector(0, 0, 1), 1.375), False)
sketch18.addConstraint(Sketcher.Constraint("Diameter", 0, 2.75))
sketch18.addConstraint(Sketcher.Constraint("DistanceX", 0, 3, -1, 1, 10.5))
sketch18.addConstraint(Sketcher.Constraint("DistanceY", -1, 1, 0, 3, 7.22))
pocket17 = body.newObject("PartDesign::Pocket", "Pocket016")
pocket17.Profile = sketch18
pocket17.Type = "UpToFirst"
pocket17.Reversed = True

# Sketch on XY plane
sketch19 = body.newObject("Sketcher::SketchObject", "Sketch018")
sketch19.AttachmentSupport = (doc.getObject("XY_Plane"), [""])
sketch19.MapMode = "FlatFace"
sketch19.addGeometry(Part.Circle(App.Vector(10.5, -6.78, 0), App.Vector(0, 0, 1), 1.375), False)
sketch19.addConstraint(Sketcher.Constraint("Diameter", 0, 2.75))
sketch19.addConstraint(Sketcher.Constraint("DistanceX", -1, 1, 0, 3, 10.5))
sketch19.addConstraint(Sketcher.Constraint("DistanceY", 0, 3, -1, 1, 6.78))
pocket18 = body.newObject("PartDesign::Pocket", "Pocket017")
pocket18.Profile = sketch19
pocket18.Type = "UpToFirst"
pocket18.Reversed = True

# Sketch on XY plane
sketch20 = body.newObject("Sketcher::SketchObject", "Sketch019")
sketch20.AttachmentSupport = (doc.getObject("XY_Plane"), [""])
sketch20.MapMode = "FlatFace"
sketch20.addGeometry(Part.Circle(App.Vector(-10.5, -6.78, 0), App.Vector(0, 0, 1), 1.375), False)
sketch20.addConstraint(Sketcher.Constraint("Diameter", 0, 2.75))
sketch20.addConstraint(Sketcher.Constraint("DistanceX", 0, 3, -1, 1, 10.5))
sketch20.addConstraint(Sketcher.Constraint("DistanceY", 0, 3, -1, 1, 6.78))
pocket19 = body.newObject("PartDesign::Pocket", "Pocket018")
pocket19.Profile = sketch20
pocket19.Type = "UpToFirst"
pocket19.Reversed = True
doc.recompute()

fillet = body.newObject("PartDesign::Fillet", "Fillet")
fillet.Base = (pocket19, edges_at(pocket19, [
    (-29, 12.5, 31.95),
    (29, 12.5, 31.95),
    (-18.5, -11.45, 37),
    (-20.7, 12.5, 31.95),
    (-24.85, -12.5, 33),
    (20.7, 12.5, 31.95),
    (18.5, -11.45, 37),
    (24.85, -12.5, 33),
    (0, -12.5, 0),
    (-29, -11.45, 8),
    (-21.5, 12.5, 1.05),
    (29, -11.45, 8),
    (21.5, 12.5, 1.05),
]))
fillet.Radius = 2
doc.recompute()

fillet2 = body.newObject("PartDesign::Fillet", "Fillet001")
fillet2.Base = (fillet, edges_at(fillet, [(-24.85, -10.4, 30.9), (24.85, -10.4, 30.9), (0, -10.4, 2.1)]))
fillet2.Radius = 1

doc.recompute()
